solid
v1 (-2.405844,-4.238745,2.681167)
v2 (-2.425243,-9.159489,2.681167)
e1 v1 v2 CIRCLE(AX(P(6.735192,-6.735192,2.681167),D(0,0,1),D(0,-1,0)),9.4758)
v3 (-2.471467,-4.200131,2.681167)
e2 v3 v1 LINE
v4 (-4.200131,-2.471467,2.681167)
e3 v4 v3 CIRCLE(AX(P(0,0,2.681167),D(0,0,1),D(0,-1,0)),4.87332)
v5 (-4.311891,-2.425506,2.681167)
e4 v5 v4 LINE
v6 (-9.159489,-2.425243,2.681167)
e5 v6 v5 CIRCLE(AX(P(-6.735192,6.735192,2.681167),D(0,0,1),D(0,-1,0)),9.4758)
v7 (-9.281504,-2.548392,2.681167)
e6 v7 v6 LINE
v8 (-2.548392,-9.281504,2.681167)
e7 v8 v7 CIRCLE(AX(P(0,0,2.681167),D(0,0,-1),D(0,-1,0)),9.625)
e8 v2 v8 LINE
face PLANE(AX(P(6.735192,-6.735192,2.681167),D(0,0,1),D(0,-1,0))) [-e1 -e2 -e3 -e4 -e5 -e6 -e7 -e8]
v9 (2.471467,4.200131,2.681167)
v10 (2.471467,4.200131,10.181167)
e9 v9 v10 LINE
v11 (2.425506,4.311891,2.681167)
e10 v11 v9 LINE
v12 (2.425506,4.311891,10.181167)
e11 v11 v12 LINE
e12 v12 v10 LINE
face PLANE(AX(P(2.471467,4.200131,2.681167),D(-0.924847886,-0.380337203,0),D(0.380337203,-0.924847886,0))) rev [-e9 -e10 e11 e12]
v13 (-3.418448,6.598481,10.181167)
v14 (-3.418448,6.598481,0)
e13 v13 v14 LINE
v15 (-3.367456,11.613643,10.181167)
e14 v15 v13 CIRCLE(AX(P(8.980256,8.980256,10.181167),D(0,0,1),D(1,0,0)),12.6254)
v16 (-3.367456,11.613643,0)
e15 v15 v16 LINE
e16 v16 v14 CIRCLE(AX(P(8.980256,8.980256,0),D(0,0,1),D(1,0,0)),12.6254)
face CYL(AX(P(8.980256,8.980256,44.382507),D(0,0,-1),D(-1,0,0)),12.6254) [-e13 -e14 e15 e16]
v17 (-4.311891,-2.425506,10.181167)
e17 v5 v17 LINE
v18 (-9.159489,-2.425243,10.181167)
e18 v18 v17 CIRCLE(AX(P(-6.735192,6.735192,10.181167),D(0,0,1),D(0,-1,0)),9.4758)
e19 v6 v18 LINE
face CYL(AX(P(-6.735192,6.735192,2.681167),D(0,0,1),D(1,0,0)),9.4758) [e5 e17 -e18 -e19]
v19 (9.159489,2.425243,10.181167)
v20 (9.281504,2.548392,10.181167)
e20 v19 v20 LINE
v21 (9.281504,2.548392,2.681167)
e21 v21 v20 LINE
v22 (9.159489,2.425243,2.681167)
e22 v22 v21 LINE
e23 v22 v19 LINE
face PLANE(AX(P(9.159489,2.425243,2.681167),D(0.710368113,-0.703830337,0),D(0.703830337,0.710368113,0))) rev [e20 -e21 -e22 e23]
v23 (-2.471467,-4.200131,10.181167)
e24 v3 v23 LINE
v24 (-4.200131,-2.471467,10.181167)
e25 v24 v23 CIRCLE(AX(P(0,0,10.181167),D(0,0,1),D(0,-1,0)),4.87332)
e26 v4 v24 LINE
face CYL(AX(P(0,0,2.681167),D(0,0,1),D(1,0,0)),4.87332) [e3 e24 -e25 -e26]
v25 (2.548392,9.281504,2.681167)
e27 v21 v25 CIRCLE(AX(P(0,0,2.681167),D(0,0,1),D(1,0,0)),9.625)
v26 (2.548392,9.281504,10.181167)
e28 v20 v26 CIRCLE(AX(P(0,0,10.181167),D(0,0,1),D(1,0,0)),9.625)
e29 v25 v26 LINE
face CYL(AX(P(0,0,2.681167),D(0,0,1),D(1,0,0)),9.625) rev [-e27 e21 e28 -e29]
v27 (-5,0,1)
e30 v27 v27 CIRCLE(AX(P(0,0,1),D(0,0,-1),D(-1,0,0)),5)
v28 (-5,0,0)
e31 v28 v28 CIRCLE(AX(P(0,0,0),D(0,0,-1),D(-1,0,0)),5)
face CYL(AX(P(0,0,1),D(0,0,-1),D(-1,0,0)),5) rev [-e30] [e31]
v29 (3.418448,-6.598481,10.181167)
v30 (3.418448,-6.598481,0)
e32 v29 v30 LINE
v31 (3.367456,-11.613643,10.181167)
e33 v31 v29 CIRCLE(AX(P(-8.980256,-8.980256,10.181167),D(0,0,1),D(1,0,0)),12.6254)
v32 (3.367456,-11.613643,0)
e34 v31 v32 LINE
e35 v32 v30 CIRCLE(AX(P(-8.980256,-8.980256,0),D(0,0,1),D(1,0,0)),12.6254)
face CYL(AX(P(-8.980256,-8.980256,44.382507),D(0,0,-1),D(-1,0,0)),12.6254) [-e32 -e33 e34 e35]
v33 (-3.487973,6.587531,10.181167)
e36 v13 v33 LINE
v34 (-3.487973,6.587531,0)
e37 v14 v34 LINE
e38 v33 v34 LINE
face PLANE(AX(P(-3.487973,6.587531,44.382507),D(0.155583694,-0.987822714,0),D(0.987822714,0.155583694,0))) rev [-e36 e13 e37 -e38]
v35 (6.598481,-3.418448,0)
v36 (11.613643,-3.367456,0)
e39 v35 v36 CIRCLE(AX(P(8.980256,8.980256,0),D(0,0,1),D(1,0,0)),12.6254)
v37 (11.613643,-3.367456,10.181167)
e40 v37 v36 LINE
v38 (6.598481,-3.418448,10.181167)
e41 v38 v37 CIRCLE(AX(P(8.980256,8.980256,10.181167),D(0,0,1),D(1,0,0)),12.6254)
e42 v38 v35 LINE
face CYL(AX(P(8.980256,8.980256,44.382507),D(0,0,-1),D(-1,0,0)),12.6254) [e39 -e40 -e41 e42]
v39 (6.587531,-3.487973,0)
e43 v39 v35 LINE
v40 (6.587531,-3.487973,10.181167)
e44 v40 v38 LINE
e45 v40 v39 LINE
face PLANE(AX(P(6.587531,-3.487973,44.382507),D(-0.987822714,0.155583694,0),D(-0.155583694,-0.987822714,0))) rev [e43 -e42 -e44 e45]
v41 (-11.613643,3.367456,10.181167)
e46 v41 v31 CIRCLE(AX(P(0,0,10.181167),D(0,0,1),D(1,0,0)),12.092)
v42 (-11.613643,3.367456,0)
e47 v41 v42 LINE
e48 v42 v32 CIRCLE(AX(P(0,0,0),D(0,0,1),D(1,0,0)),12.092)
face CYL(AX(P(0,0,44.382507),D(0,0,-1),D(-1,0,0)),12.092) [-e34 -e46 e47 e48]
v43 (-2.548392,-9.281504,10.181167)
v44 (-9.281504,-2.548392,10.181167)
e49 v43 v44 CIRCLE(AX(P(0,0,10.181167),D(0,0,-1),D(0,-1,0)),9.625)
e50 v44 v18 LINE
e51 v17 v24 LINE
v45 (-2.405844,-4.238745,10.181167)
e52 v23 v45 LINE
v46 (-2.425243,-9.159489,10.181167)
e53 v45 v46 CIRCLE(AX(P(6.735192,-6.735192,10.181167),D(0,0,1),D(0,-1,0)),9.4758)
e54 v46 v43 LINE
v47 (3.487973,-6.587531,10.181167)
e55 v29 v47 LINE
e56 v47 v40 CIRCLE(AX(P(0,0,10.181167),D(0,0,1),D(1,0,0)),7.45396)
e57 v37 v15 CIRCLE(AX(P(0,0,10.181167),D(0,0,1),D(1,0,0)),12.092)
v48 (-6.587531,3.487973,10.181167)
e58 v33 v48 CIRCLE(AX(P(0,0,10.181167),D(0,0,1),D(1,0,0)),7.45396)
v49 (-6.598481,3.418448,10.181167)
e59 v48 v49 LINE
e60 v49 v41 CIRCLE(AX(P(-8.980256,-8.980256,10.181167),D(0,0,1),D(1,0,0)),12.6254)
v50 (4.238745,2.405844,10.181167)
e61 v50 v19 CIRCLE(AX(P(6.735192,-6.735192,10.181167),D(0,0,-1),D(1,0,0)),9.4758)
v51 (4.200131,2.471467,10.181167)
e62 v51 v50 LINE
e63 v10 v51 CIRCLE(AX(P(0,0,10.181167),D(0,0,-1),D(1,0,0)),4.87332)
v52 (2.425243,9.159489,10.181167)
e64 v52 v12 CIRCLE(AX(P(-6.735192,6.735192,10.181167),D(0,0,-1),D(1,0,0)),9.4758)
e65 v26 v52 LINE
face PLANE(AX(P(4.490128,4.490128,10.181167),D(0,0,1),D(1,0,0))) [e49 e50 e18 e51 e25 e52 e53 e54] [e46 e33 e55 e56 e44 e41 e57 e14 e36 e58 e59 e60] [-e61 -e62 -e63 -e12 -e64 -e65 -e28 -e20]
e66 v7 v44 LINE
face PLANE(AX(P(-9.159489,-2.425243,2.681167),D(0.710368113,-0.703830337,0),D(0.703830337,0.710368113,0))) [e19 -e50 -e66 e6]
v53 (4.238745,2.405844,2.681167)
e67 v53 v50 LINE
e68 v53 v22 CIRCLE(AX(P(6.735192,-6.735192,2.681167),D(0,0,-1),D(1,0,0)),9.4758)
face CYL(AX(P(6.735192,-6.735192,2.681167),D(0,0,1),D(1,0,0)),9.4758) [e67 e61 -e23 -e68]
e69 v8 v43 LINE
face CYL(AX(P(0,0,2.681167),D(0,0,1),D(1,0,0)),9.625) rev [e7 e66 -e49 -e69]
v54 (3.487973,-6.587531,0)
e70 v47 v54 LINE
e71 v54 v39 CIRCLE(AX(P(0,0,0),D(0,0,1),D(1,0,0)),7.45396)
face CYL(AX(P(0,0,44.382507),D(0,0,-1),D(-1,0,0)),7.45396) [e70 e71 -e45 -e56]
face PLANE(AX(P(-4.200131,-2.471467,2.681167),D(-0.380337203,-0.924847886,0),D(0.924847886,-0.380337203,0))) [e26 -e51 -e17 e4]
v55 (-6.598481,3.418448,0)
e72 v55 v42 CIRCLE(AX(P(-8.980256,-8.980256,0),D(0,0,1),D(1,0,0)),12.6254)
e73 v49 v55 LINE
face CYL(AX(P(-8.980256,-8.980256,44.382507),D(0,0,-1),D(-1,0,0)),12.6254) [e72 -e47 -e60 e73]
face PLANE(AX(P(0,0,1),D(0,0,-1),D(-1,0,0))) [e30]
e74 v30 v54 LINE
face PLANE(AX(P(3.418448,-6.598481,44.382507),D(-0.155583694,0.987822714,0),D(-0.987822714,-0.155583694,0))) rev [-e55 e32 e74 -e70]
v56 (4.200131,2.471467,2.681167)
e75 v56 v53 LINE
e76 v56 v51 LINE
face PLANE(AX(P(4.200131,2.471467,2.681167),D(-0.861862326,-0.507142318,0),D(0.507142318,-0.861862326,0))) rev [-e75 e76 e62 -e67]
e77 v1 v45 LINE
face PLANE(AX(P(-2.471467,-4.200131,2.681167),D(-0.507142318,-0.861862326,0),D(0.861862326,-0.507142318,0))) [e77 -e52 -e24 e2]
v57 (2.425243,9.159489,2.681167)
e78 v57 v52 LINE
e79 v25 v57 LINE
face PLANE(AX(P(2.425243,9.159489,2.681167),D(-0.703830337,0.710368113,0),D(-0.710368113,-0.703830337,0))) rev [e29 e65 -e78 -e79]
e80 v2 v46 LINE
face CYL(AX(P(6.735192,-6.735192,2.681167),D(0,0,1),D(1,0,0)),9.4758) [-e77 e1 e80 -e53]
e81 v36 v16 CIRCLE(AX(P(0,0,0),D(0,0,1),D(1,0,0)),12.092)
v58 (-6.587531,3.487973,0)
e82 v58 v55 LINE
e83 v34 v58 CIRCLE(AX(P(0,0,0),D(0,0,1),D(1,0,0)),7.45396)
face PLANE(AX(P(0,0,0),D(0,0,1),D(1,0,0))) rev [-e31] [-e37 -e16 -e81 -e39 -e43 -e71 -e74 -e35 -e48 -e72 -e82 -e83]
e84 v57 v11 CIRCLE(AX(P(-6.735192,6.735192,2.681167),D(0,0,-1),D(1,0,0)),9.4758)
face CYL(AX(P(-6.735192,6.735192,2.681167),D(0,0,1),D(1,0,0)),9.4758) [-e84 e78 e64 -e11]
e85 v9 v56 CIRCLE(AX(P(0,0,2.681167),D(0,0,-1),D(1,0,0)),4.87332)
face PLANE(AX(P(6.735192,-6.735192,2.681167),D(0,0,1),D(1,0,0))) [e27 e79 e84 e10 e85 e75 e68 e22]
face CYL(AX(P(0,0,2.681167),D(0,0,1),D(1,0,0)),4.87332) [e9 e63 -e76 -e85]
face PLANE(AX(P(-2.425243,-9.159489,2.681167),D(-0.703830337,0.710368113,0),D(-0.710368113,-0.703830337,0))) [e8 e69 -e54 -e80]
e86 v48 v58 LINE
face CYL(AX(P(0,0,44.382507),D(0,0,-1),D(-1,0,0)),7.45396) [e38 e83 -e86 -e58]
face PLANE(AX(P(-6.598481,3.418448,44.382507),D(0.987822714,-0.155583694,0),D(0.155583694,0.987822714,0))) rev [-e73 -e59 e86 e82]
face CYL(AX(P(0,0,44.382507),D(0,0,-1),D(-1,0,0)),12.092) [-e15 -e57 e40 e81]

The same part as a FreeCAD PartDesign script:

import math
import FreeCAD as App
import Part
import Sketcher

V = App.Vector

doc = App.newDocument("Part")
body = doc.addObject("PartDesign::Body", "Body")

# Sketch on XY plane
sketch1 = body.newObject("Sketcher::SketchObject", "Sketch")
sketch1.AttachmentSupport = (doc.getObject("XY_Plane"), [""])
sketch1.MapMode = "FlatFace"
sketch1.addGeometry(Part.LineSegment(V(-6.587531, 3.487973, 0), V(-6.598481, 3.418448, 0)), False)
sketch1.addGeometry(Part.ArcOfCircle(Part.Circle(V(-8.980256, -8.980256, 0), V(0, 0, 1), 12.6254), math.radians(79.126022), math.radians(102.039061)), False)
sketch1.addGeometry(Part.ArcOfCircle(Part.Circle(V(0, 0, 0), V(0, 0, 1), 12.092), math.radians(163.830118), math.radians(286.169882)), False)
sketch1.addGeometry(Part.ArcOfCircle(Part.Circle(V(-8.980256, -8.980256, 0), V(0, 0, 1), 12.6254), math.radians(-12.039061), math.radians(10.873978)), False)
sketch1.addGeometry(Part.LineSegment(V(3.418448, -6.598481, 0), V(3.487973, -6.587531, 0)), False)
sketch1.addGeometry(Part.ArcOfCircle(Part.Circle(V(0, 0, 0), V(0, 0, 1), 7.45396), math.radians(-62.099631), math.radians(-27.900369)), False)
sketch1.addGeometry(Part.LineSegment(V(6.587531, -3.487973, 0), V(6.598481, -3.418448, 0)), False)
sketch1.addGeometry(Part.ArcOfCircle(Part.Circle(V(8.980256, 8.980256, 0), V(0, 0, 1), 12.6254), math.radians(-100.873978), math.radians(-77.960939)), False)
sketch1.addGeometry(Part.ArcOfCircle(Part.Circle(V(0, 0, 0), V(0, 0, 1), 12.092), math.radians(-16.169882), math.radians(106.169882)), False)
sketch1.addGeometry(Part.ArcOfCircle(Part.Circle(V(8.980256, 8.980256, 0), V(0, 0, 1), 12.6254), math.radians(167.960939), math.radians(190.873978)), False)
sketch1.addGeometry(Part.LineSegment(V(-3.418448, 6.598481, 0), V(-3.487973, 6.587531, 0)), False)
sketch1.addGeometry(Part.ArcOfCircle(Part.Circle(V(0, 0, 0), V(0, 0, 1), 7.45396), math.radians(117.900369), math.radians(152.099631)), False)
sketch1.addConstraint(Sketcher.Constraint("Coincident", 0, 2, 1, 1))
sketch1.addConstraint(Sketcher.Constraint("Coincident", 1, 2, 2, 1))
sketch1.addConstraint(Sketcher.Constraint("Coincident", 2, 2, 3, 1))
sketch1.addConstraint(Sketcher.Constraint("Coincident", 3, 2, 4, 1))
sketch1.addConstraint(Sketcher.Constraint("Coincident", 4, 2, 5, 1))
sketch1.addConstraint(Sketcher.Constraint("Coincident", 5, 2, 6, 1))
sketch1.addConstraint(Sketcher.Constraint("Coincident", 6, 2, 7, 1))
sketch1.addConstraint(Sketcher.Constraint("Coincident", 7, 2, 8, 1))
sketch1.addConstraint(Sketcher.Constraint("Coincident", 8, 2, 9, 1))
sketch1.addConstraint(Sketcher.Constraint("Coincident", 9, 2, 10, 1))
sketch1.addConstraint(Sketcher.Constraint("Coincident", 10, 2, 11, 1))
sketch1.addConstraint(Sketcher.Constraint("Coincident", 11, 2, 0, 1))
sketch1.addConstraint(Sketcher.Constraint("Coincident", 2, 3, -1, 1))
sketch1.addConstraint(Sketcher.Constraint("Coincident", 5, 3, -1, 1))
sketch1.addConstraint(Sketcher.Constraint("Coincident", 8, 3, -1, 1))
sketch1.addConstraint(Sketcher.Constraint("Coincident", 11, 3, -1, 1))
sketch1.addConstraint(Sketcher.Constraint("Coincident", 3, 3, 1, 3))
sketch1.addConstraint(Sketcher.Constraint("Coincident", 9, 3, 7, 3))
sketch1.addConstraint(Sketcher.Constraint("Equal", 1, 3))
sketch1.addConstraint(Sketcher.Constraint("Equal", 3, 7))
sketch1.addConstraint(Sketcher.Constraint("Equal", 2, 8))
sketch1.addConstraint(Sketcher.Constraint("Equal", 7, 9))
sketch1.addConstraint(Sketcher.Constraint("Equal", 5, 11))
sketch1.addConstraint(Sketcher.Constraint("Symmetric", 1, 3, 7, 3, -1, 1))
sketch1.addConstraint(Sketcher.Constraint("Parallel", 0, 6))
sketch1.addConstraint(Sketcher.Constraint("Parallel", 4, 10))
sketch1.addConstraint(Sketcher.Constraint("Equal", 0, 4))
sketch1.addConstraint(Sketcher.Constraint("Equal", 4, 6))
sketch1.addConstraint(Sketcher.Constraint("Equal", 6, 10))
sketch1.addConstraint(Sketcher.Constraint("Radius", 2, 12.092))
sketch1.addConstraint(Sketcher.Constraint("Radius", 1, 12.6254))
sketch1.addConstraint(Sketcher.Constraint("Radius", 5, 7.45396))
sketch1.addConstraint(Sketcher.Constraint("Distance", 0, 0.070381))
sketch1.addConstraint(Sketcher.Constraint("DistanceX", 0, 2, -1, 1, 6.598481))
sketch1.addConstraint(Sketcher.Constraint("DistanceY", -1, 1, 0, 2, 3.418448))
sketch1.addConstraint(Sketcher.Constraint("DistanceX", -1, 1, 3, 2, 3.418448))
sketch1.addConstraint(Sketcher.Constraint("DistanceY", 3, 2, -1, 1, 6.598481))
pad1 = body.newObject("PartDesign::Pad", "Pad")
pad1.Profile = sketch1
pad1.Length = 10.181167

# Sketch on XY plane
sketch2 = body.newObject("Sketcher::SketchObject", "Sketch001")
sketch2.AttachmentSupport = (doc.getObject("XY_Plane"), [""])
sketch2.MapMode = "FlatFace"
sketch2.addGeometry(Part.Circle(V(0, 0, 0), V(0, 0, 1), 5), False)
sketch2.addConstraint(Sketcher.Constraint("Coincident", 0, 3, -1, 1))
sketch2.addConstraint(Sketcher.Constraint("Diameter", 0, 10.0))
pocket1 = body.newObject("PartDesign::Pocket", "Pocket")
pocket1.Profile = sketch2
pocket1.Length = 1
pocket1.Reversed = True

# Sketch on XY plane
sketch3 = body.newObject("Sketcher::SketchObject", "Sketch002")
sketch3.AttachmentSupport = (doc.getObject("XY_Plane"), [""])
sketch3.MapMode = "FlatFace"
sketch3.AttachmentOffset = App.Placement(V(0, 0, 10.181167), App.Rotation())
sketch3.addGeometry(Part.LineSegment(V(9.159489, 2.425243, 0), V(9.281504, 2.548392, 0)), False)
sketch3.addGeometry(Part.ArcOfCircle(Part.Circle(V(0, 0, 0), V(0, 0, 1), 9.625), math.radians(15.353165), math.radians(74.646835)), False)
sketch3.addGeometry(Part.LineSegment(V(2.548392, 9.281504, 0), V(2.425243, 9.159489, 0)), False)
sketch3.addGeometry(Part.ArcOfCircle(Part.Circle(V(-6.735192, 6.735192, 0), V(0, 0, 1), 9.4758), math.radians(-14.81719), math.radians(14.823417)), False)
sketch3.addGeometry(Part.LineSegment(V(2.425506, 4.311891, 0), V(2.471467, 4.200131, 0)), False)
sketch3.addGeometry(Part.ArcOfCircle(Part.Circle(V(0, 0, 0), V(0, 0, 1), 4.87332), math.radians(30.473668), math.radians(59.526332)), False)
sketch3.addGeometry(Part.LineSegment(V(4.200131, 2.471467, 0), V(4.238745, 2.405844, 0)), False)
sketch3.addGeometry(Part.ArcOfCircle(Part.Circle(V(6.735192, -6.735192, 0), V(0, 0, 1), 9.4758), math.radians(77.796626), math.radians(105.275169)), False)
sketch3.addGeometry(Part.ArcOfCircle(Part.Circle(V(6.735192, -6.735192, 0), V(0, 0, 1), 9.4758), math.radians(75.176583), math.radians(77.796626)), False)
sketch3.addConstraint(Sketcher.Constraint("Coincident", 0, 2, 1, 1))
sketch3.addConstraint(Sketcher.Constraint("Coincident", 1, 2, 2, 1))
sketch3.addConstraint(Sketcher.Constraint("Coincident", 2, 2, 3, 2))
sketch3.addConstraint(Sketcher.Constraint("Coincident", 3, 1, 4, 1))
sketch3.addConstraint(Sketcher.Constraint("Coincident", 4, 2, 5, 2))
sketch3.addConstraint(Sketcher.Constraint("Tangent", 5, 1, 6, 1))
sketch3.addConstraint(Sketcher.Constraint("Coincident", 6, 2, 7, 2))
sketch3.addConstraint(Sketcher.Constraint("Tangent", 7, 1, 8, 2))
sketch3.addConstraint(Sketcher.Constraint("Coincident", 8, 1, 0, 1))
sketch3.addConstraint(Sketcher.Constraint("Coincident", 1, 3, -1, 1))
sketch3.addConstraint(Sketcher.Constraint("Coincident", 5, 3, -1, 1))
sketch3.addConstraint(Sketcher.Constraint("Equal", 3, 7))
sketch3.addConstraint(Sketcher.Constraint("Equal", 7, 8))
sketch3.addConstraint(Sketcher.Constraint("Symmetric", 3, 3, 7, 3, -1, 1))
sketch3.addConstraint(Sketcher.Constraint("Equal", 0, 2))
sketch3.addConstraint(Sketcher.Constraint("Radius", 1, 9.625))
sketch3.addConstraint(Sketcher.Constraint("Radius", 3, 9.4758))
sketch3.addConstraint(Sketcher.Constraint("Radius", 5, 4.87332))
sketch3.addConstraint(Sketcher.Constraint("DistanceX", 3, 1, 0, 2, 6.855998))
sketch3.addConstraint(Sketcher.Constraint("DistanceY", 0, 2, 3, 3, 4.186801))
sketch3.addConstraint(Sketcher.Constraint("DistanceX", 1, 2, 7, 3, 4.1868))
sketch3.addConstraint(Sketcher.Constraint("DistanceY", 3, 1, 2, 2, 4.847598))
sketch3.addConstraint(Sketcher.Constraint("DistanceY", 0, 2, 3, 1, 1.763499))
sketch3.addConstraint(Sketcher.Constraint("DistanceY", 6, 2, 8, 1, 0.019399))
sketch3.addConstraint(Sketcher.Constraint("Distance", 4, 0.120841))
sketch3.addConstraint(Sketcher.Constraint("Distance", 6, 0.076141))
sketch3.addConstraint(Sketcher.Constraint("DistanceX", -1, 1, 7, 1, 8.738209))
pocket2 = body.newObject("PartDesign::Pocket", "Pocket001")
pocket2.Profile = sketch3
pocket2.Length = 7.5
doc.recompute()

datumplane = body.newObject("PartDesign::Plane", "DatumPlane")
datumplane.Placement = App.Placement(V(0, 0, 0), App.Rotation(V(0.707106781, -0.707106781, 0), V(0, 0, -1), V(0.707106781, 0.707106781, 0), "ZXY"))
mirrored = body.newObject("PartDesign::Mirrored", "Mirrored")
mirrored.Originals = [pocket2]
mirrored.MirrorPlane = (datumplane, [""])
body.Tip = mirrored

doc.recompute()
